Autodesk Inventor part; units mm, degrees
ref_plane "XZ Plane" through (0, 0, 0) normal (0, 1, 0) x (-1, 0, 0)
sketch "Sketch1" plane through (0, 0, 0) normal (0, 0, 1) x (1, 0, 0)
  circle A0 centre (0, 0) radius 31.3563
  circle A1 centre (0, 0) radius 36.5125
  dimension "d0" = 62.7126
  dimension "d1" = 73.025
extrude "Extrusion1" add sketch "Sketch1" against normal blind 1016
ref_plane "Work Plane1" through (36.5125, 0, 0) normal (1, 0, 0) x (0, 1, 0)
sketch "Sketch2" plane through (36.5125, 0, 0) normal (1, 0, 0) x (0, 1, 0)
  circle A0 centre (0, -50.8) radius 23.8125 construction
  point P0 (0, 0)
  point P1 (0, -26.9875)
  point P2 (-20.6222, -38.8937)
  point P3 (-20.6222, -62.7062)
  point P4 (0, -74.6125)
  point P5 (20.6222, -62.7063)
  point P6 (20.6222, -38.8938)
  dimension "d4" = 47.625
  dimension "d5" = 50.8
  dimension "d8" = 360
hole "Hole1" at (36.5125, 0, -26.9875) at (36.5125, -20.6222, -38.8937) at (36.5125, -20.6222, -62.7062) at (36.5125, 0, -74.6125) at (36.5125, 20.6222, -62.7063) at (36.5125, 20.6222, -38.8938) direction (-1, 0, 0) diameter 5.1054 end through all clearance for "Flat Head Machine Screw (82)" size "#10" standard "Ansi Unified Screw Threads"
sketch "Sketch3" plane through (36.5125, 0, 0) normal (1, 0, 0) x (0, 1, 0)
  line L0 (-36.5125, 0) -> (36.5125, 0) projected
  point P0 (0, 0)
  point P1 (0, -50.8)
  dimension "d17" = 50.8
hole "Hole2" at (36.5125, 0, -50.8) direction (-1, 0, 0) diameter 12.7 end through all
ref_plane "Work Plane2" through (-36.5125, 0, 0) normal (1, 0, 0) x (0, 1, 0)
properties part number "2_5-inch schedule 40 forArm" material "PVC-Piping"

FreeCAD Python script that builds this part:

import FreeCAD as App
import Part
import Sketcher
Q = App.Units.Quantity

doc = App.newDocument("Part")
params = doc.addObject("Spreadsheet::Sheet", "Params")
for row, (alias, value) in enumerate([
    ("sketch1_diameter", "2.875 in"),
    ("sketch1_diameter2", "2.469 in"),
    ("pad1_length", "40 in"),
    ("sketch2_diameter", "0.201 in"),
    ("hole_diameter", "0.201 in"),
    ("sketch3_diameter", "0.5 in"),
    ("hole2_diameter", "0.5 in"),
], start=1):
    params.set(f"A{row}", alias)
    params.set(f"B{row}", "=" + value)
    params.setAlias(f"B{row}", alias)

body = doc.addObject("PartDesign::Body", "Body")

# Sketch on XY plane
sketch1 = body.newObject("Sketcher::SketchObject", "Sketch")
sketch1.AttachmentSupport = (doc.getObject("XY_Plane"), [""])
sketch1.MapMode = "FlatFace"
sketch1.addGeometry([
    Part.Circle(App.Vector(0, 0, 0), App.Vector(0, 0, 1), 37),
    Part.Circle(App.Vector(0, 0, 0), App.Vector(0, 0, 1), 31),
], False)
sketch1.addConstraint([
    Sketcher.Constraint("Coincident", 0, 3, -1, 1),
    Sketcher.Constraint("Coincident", 1, 3, -1, 1),
    Sketcher.Constraint("Diameter", 0, Q("2.875 in")),
    Sketcher.Constraint("Diameter", 1, Q("2.469 in")),
])
sketch1.setExpression("Constraints[2]", "Params.sketch1_diameter")
sketch1.setExpression("Constraints[3]", "Params.sketch1_diameter2")
pad1 = body.newObject("PartDesign::Pad", "Pad")
pad1.Profile = sketch1
pad1.setExpression("Length", "Params.pad1_length")
pad1.Reversed = True

# Sketch on YZ plane
sketch2 = body.newObject("Sketcher::SketchObject", "Sketch001")
sketch2.AttachmentSupport = (doc.getObject("YZ_Plane"), [""])
sketch2.MapMode = "FlatFace"
sketch2.AttachmentOffset = App.Placement(App.Vector(0, 0, 1.4375 * 25.4), App.Rotation())
sketch2.addGeometry([
    Part.Circle(App.Vector(0, -27, 0), App.Vector(0, 0, 1), 2.6),  # 0
    Part.Circle(App.Vector(-20.6, -38.9, 0), App.Vector(0, 0, 1), 2.6),  # 1
    Part.Circle(App.Vector(-20.6, -62.7, 0), App.Vector(0, 0, 1), 2.6),  # 2
    Part.Circle(App.Vector(0, -74.6, 0), App.Vector(0, 0, 1), 2.6),  # 3
    Part.Circle(App.Vector(20.6, -62.7, 0), App.Vector(0, 0, 1), 2.6),  # 4
    Part.Circle(App.Vector(20.6, -38.9, 0), App.Vector(0, 0, 1), 2.6),  # 5
], False)
sketch2.addConstraint([
    Sketcher.Constraint("Equal", 0, 1),
    Sketcher.Constraint("Equal", 1, 2),
    Sketcher.Constraint("Equal", 2, 3),
    Sketcher.Constraint("Equal", 3, 4),
    Sketcher.Constraint("Equal", 4, 5),
    Sketcher.Constraint("Symmetric", 2, 3, 4, 3, -2),
    Sketcher.Constraint("Symmetric", 1, 3, 5, 3, -2),
    Sketcher.Constraint("PointOnObject", 0, 3, -2),
    Sketcher.Constraint("PointOnObject", 3, 3, -2),
    Sketcher.Constraint("Vertical", 1, 3, 2, 3),
    Sketcher.Constraint("Diameter", 0, Q("0.201 in")),
    Sketcher.Constraint("DistanceY", 0, 3, -1, 1, Q("1.0625 in")),
    Sketcher.Constraint("DistanceY", 1, 3, -1, 1, Q("1.531248 in")),
    Sketcher.Constraint("DistanceY", 2, 3, -1, 1, Q("2.468748 in")),
    Sketcher.Constraint("DistanceY", 3, 3, -1, 1, Q("2.9375 in")),
    Sketcher.Constraint("DistanceX", 1, 3, -1, 1, Q("0.8119 in")),
])
sketch2.setExpression("Constraints[10]", "Params.sketch2_diameter")
doc.recompute()
hole = body.newObject("PartDesign::Hole", "Hole")
hole.Profile = sketch2
hole.ThreadType = "None"
hole.setExpression("Diameter", "Params.hole_diameter")
hole.DepthType = "ThroughAll"

# Sketch on YZ plane
sketch3 = body.newObject("Sketcher::SketchObject", "Sketch002")
sketch3.AttachmentSupport = (doc.getObject("YZ_Plane"), [""])
sketch3.MapMode = "FlatFace"
sketch3.AttachmentOffset = App.Placement(App.Vector(0, 0, 1.4375 * 25.4), App.Rotation())
sketch3.addGeometry(Part.Circle(App.Vector(0, -51, 0), App.Vector(0, 0, 1), 6), False)
sketch3.addConstraint([
    Sketcher.Constraint("PointOnObject", 0, 3, -2),
    Sketcher.Constraint("Diameter", 0, Q("0.5 in")),
    Sketcher.Constraint("DistanceY", 0, 3, -1, 1, Q("2 in")),
])
sketch3.setExpression("Constraints[1]", "Params.sketch3_diameter")
doc.recompute()
hole2 = body.newObject("PartDesign::Hole", "Hole001")
hole2.Profile = sketch3
hole2.ThreadType = "None"
hole2.setExpression("Diameter", "Params.hole2_diameter")
hole2.DepthType = "ThroughAll"

doc.recompute()
